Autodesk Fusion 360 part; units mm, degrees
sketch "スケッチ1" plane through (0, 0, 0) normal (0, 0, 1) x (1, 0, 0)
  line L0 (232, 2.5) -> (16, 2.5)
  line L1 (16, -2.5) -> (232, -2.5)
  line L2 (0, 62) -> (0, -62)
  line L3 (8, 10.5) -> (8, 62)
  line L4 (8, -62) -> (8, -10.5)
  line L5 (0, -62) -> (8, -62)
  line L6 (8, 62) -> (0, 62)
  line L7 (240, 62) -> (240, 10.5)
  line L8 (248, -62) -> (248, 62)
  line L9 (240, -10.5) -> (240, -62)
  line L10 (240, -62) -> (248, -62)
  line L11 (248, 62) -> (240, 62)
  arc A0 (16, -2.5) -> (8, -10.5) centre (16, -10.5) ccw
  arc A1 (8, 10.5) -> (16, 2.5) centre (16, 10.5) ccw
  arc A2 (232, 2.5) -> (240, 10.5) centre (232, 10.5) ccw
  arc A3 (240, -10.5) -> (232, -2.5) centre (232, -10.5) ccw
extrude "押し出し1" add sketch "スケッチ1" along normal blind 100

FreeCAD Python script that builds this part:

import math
import FreeCAD as App
import Part
import Sketcher
from FreeCAD import Vector

doc = App.newDocument("Part")
body = doc.addObject("PartDesign::Body", "Body")

# Sketch on XY plane
sketch1 = doc.addObject("Sketcher::SketchObject", "Sketch")
body.addObject(sketch1)
sketch1.AttachmentSupport = (doc.XY_Plane, [""])
sketch1.MapMode = "FlatFace"
sketch1.addGeometry(Part.ArcOfCircle(Part.Circle(Vector(232, 10, 0), Vector(0, 0, 1), 8), math.radians(-90), math.radians(0)), False)
sketch1.addGeometry(Part.LineSegment(Vector(232, 2, 0), Vector(16, 2, 0)), False)
sketch1.addGeometry(Part.ArcOfCircle(Part.Circle(Vector(16, 10, 0), Vector(0, 0, 1), 8), math.radians(180), math.radians(270)), False)
sketch1.addGeometry(Part.LineSegment(Vector(8, 10, 0), Vector(8, 62, 0)), False)
sketch1.addGeometry(Part.LineSegment(Vector(8, 62, 0), Vector(0, 62, 0)), False)
sketch1.addGeometry(Part.LineSegment(Vector(0, 62, 0), Vector(0, -62, 0)), False)
sketch1.addGeometry(Part.LineSegment(Vector(0, -62, 0), Vector(8, -62, 0)), False)
sketch1.addGeometry(Part.LineSegment(Vector(8, -62, 0), Vector(8, -10, 0)), False)
sketch1.addGeometry(Part.ArcOfCircle(Part.Circle(Vector(16, -10, 0), Vector(0, 0, 1), 8), math.radians(90), math.radians(180)), False)
sketch1.addGeometry(Part.LineSegment(Vector(16, -2, 0), Vector(232, -2, 0)), False)
sketch1.addGeometry(Part.ArcOfCircle(Part.Circle(Vector(232, -10, 0), Vector(0, 0, 1), 8), math.radians(0), math.radians(90)), False)
sketch1.addGeometry(Part.LineSegment(Vector(240, -10, 0), Vector(240, -62, 0)), False)
sketch1.addGeometry(Part.LineSegment(Vector(240, -62, 0), Vector(248, -62, 0)), False)
sketch1.addGeometry(Part.LineSegment(Vector(248, -62, 0), Vector(248, 62, 0)), False)
sketch1.addGeometry(Part.LineSegment(Vector(248, 62, 0), Vector(240, 62, 0)), False)
sketch1.addGeometry(Part.LineSegment(Vector(240, 62, 0), Vector(240, 10, 0)), False)
sketch1.addConstraint(Sketcher.Constraint("Tangent", 0, 1, 1, 1))
sketch1.addConstraint(Sketcher.Constraint("Tangent", 1, 2, 2, 2))
sketch1.addConstraint(Sketcher.Constraint("Tangent", 2, 1, 3, 1))
sketch1.addConstraint(Sketcher.Constraint("Coincident", 3, 2, 4, 1))
sketch1.addConstraint(Sketcher.Constraint("Coincident", 4, 2, 5, 1))
sketch1.addConstraint(Sketcher.Constraint("Coincident", 5, 2, 6, 1))
sketch1.addConstraint(Sketcher.Constraint("Coincident", 6, 2, 7, 1))
sketch1.addConstraint(Sketcher.Constraint("Tangent", 7, 2, 8, 2))
sketch1.addConstraint(Sketcher.Constraint("Tangent", 8, 1, 9, 1))
sketch1.addConstraint(Sketcher.Constraint("Tangent", 9, 2, 10, 2))
sketch1.addConstraint(Sketcher.Constraint("Tangent", 10, 1, 11, 1))
sketch1.addConstraint(Sketcher.Constraint("Coincident", 11, 2, 12, 1))
sketch1.addConstraint(Sketcher.Constraint("Coincident", 12, 2, 13, 1))
sketch1.addConstraint(Sketcher.Constraint("Coincident", 13, 2, 14, 1))
sketch1.addConstraint(Sketcher.Constraint("Coincident", 14, 2, 15, 1))
sketch1.addConstraint(Sketcher.Constraint("Tangent", 15, 2, 0, 2))
sketch1.addConstraint(Sketcher.Constraint("Horizontal", 1))
sketch1.addConstraint(Sketcher.Constraint("Vertical", 3))
sketch1.addConstraint(Sketcher.Constraint("Horizontal", 4))
sketch1.addConstraint(Sketcher.Constraint("Vertical", 5))
sketch1.addConstraint(Sketcher.Constraint("Horizontal", 6))
sketch1.addConstraint(Sketcher.Constraint("Vertical", 7))
sketch1.addConstraint(Sketcher.Constraint("Horizontal", 9))
sketch1.addConstraint(Sketcher.Constraint("Vertical", 11))
sketch1.addConstraint(Sketcher.Constraint("Horizontal", 12))
sketch1.addConstraint(Sketcher.Constraint("Vertical", 13))
sketch1.addConstraint(Sketcher.Constraint("Horizontal", 14))
sketch1.addConstraint(Sketcher.Constraint("Vertical", 15))
sketch1.addConstraint(Sketcher.Constraint("Equal", 0, 2))
sketch1.addConstraint(Sketcher.Constraint("Equal", 2, 8))
sketch1.addConstraint(Sketcher.Constraint("Equal", 8, 10))
sketch1.addConstraint(Sketcher.Constraint("Symmetric", 4, 2, 5, 2, -1, 1))
sketch1.addConstraint(Sketcher.Constraint("Symmetric", 2, 3, 8, 3, -1))
sketch1.addConstraint(Sketcher.Constraint("Symmetric", 11, 2, 14, 2, -1))
sketch1.addConstraint(Sketcher.Constraint("Horizontal", 6, 2, 11, 2))
sketch1.addConstraint(Sketcher.Constraint("Equal", 6, 12))
sketch1.addConstraint(Sketcher.Constraint("Radius", 0, 8.0))
sketch1.addConstraint(Sketcher.Constraint("DistanceX", 1, 2, 1, 1, 216.0))
sketch1.addConstraint(Sketcher.Constraint("DistanceX", 4, 2, 4, 1, 8.0))
sketch1.addConstraint(Sketcher.Constraint("DistanceY", 5, 2, 5, 1, 124.0))
sketch1.addConstraint(Sketcher.Constraint("DistanceY", 3, 1, 3, 2, 51.5))
pad1 = doc.addObject("PartDesign::Pad", "Pad")
body.addObject(pad1)
pad1.Profile = sketch1
pad1.Length = 100

doc.recompute()
